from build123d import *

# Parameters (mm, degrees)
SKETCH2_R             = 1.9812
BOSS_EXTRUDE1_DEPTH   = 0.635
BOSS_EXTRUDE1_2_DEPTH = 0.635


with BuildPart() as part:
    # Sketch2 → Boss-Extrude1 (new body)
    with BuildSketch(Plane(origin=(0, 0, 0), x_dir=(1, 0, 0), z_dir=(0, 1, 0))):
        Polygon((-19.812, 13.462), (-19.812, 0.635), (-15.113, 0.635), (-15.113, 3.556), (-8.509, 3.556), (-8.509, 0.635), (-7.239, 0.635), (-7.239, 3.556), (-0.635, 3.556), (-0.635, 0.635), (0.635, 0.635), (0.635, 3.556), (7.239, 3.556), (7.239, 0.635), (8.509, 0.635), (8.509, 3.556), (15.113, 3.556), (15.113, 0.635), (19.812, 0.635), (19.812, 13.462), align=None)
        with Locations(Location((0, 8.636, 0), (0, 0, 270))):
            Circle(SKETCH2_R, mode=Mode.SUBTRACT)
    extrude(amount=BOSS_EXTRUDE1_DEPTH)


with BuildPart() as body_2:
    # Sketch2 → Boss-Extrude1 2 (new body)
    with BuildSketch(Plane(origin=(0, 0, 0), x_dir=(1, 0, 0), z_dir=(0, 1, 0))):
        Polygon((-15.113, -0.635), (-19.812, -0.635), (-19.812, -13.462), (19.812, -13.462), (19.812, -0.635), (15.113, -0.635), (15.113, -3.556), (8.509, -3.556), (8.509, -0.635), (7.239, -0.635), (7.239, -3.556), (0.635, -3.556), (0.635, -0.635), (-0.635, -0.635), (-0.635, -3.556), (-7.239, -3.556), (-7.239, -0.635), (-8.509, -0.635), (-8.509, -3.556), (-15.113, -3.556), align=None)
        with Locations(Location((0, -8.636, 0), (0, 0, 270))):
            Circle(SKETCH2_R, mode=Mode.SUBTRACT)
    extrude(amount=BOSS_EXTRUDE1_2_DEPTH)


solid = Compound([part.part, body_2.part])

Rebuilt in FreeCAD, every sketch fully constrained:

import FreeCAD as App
import Part
import Sketcher
from FreeCAD import Vector
Q = App.Units.Quantity

doc = App.newDocument("Part")
params = doc.addObject("Spreadsheet::Sheet", "Params")
for row, (alias, value) in enumerate([
    ("sketch1_diameter", "0.156 in"),
    ("sketch1_width", "0.26 in"),
    ("sketch1_width2", "0.05 in"),
    ("sketch1_width3", "1.56 in"),
    ("sketch1_height", "0.505 in"),
    ("pad1_length", "0.025 in"),
    ("sketch2_diameter", "0.156 in"),
    ("sketch2_width", "1.56 in"),
    ("sketch2_width2", "0.26 in"),
    ("sketch2_width3", "0.05 in"),
    ("sketch2_height", "0.505 in"),
    ("pad2_length", "0.025 in"),
], start=1):
    params.set(f"A{row}", alias)
    params.set(f"B{row}", "=" + value)
    params.setAlias(f"B{row}", alias)

body = doc.addObject("PartDesign::Body", "Body")

# Sketch on XZ plane
sketch1 = body.newObject("Sketcher::SketchObject", "Sketch")
sketch1.AttachmentSupport = (doc.getObject("XZ_Plane"), [""])
sketch1.MapMode = "FlatFace"
sketch1.addGeometry(Part.LineSegment(Vector(-19.812, -13.462, 0), Vector(-19.812, -0.635, 0)), False)
sketch1.addGeometry(Part.LineSegment(Vector(-19.812, -0.635, 0), Vector(-15.113, -0.635, 0)), False)
sketch1.addGeometry(Part.LineSegment(Vector(-15.113, -0.635, 0), Vector(-15.113, -3.556, 0)), False)
sketch1.addGeometry(Part.LineSegment(Vector(-15.113, -3.556, 0), Vector(-8.509, -3.556, 0)), False)
sketch1.addGeometry(Part.LineSegment(Vector(-8.509, -3.556, 0), Vector(-8.509, -0.635, 0)), False)
sketch1.addGeometry(Part.LineSegment(Vector(-8.509, -0.635, 0), Vector(-7.239, -0.635, 0)), False)
sketch1.addGeometry(Part.LineSegment(Vector(-7.239, -0.635, 0), Vector(-7.239, -3.556, 0)), False)
sketch1.addGeometry(Part.LineSegment(Vector(-7.239, -3.556, 0), Vector(-0.635, -3.556, 0)), False)
sketch1.addGeometry(Part.LineSegment(Vector(-0.635, -3.556, 0), Vector(-0.635, -0.635, 0)), False)
sketch1.addGeometry(Part.LineSegment(Vector(-0.635, -0.635, 0), Vector(0.635, -0.635, 0)), False)
sketch1.addGeometry(Part.LineSegment(Vector(0.635, -0.635, 0), Vector(0.635, -3.556, 0)), False)
sketch1.addGeometry(Part.LineSegment(Vector(0.635, -3.556, 0), Vector(7.239, -3.556, 0)), False)
sketch1.addGeometry(Part.LineSegment(Vector(7.239, -3.556, 0), Vector(7.239, -0.635, 0)), False)
sketch1.addGeometry(Part.LineSegment(Vector(7.239, -0.635, 0), Vector(8.509, -0.635, 0)), False)
sketch1.addGeometry(Part.LineSegment(Vector(8.509, -0.635, 0), Vector(8.509, -3.556, 0)), False)
sketch1.addGeometry(Part.LineSegment(Vector(8.509, -3.556, 0), Vector(15.113, -3.556, 0)), False)
sketch1.addGeometry(Part.LineSegment(Vector(15.113, -3.556, 0), Vector(15.113, -0.635, 0)), False)
sketch1.addGeometry(Part.LineSegment(Vector(15.113, -0.635, 0), Vector(19.812, -0.635, 0)), False)
sketch1.addGeometry(Part.LineSegment(Vector(19.812, -0.635, 0), Vector(19.812, -13.462, 0)), False)
sketch1.addGeometry(Part.LineSegment(Vector(19.812, -13.462, 0), Vector(-19.812, -13.462, 0)), False)
sketch1.addGeometry(Part.Circle(Vector(0, -8.636, 0), Vector(0, 0, 1), 1.9812), False)
sketch1.addConstraint(Sketcher.Constraint("Coincident", 0, 2, 1, 1))
sketch1.addConstraint(Sketcher.Constraint("Coincident", 1, 2, 2, 1))
sketch1.addConstraint(Sketcher.Constraint("Coincident", 2, 2, 3, 1))
sketch1.addConstraint(Sketcher.Constraint("Coincident", 3, 2, 4, 1))
sketch1.addConstraint(Sketcher.Constraint("Coincident", 4, 2, 5, 1))
sketch1.addConstraint(Sketcher.Constraint("Coincident", 5, 2, 6, 1))
sketch1.addConstraint(Sketcher.Constraint("Coincident", 6, 2, 7, 1))
sketch1.addConstraint(Sketcher.Constraint("Coincident", 7, 2, 8, 1))
sketch1.addConstraint(Sketcher.Constraint("Coincident", 8, 2, 9, 1))
sketch1.addConstraint(Sketcher.Constraint("Coincident", 9, 2, 10, 1))
sketch1.addConstraint(Sketcher.Constraint("Coincident", 10, 2, 11, 1))
sketch1.addConstraint(Sketcher.Constraint("Coincident", 11, 2, 12, 1))
sketch1.addConstraint(Sketcher.Constraint("Coincident", 12, 2, 13, 1))
sketch1.addConstraint(Sketcher.Constraint("Coincident", 13, 2, 14, 1))
sketch1.addConstraint(Sketcher.Constraint("Coincident", 14, 2, 15, 1))
sketch1.addConstraint(Sketcher.Constraint("Coincident", 15, 2, 16, 1))
sketch1.addConstraint(Sketcher.Constraint("Coincident", 16, 2, 17, 1))
sketch1.addConstraint(Sketcher.Constraint("Coincident", 17, 2, 18, 1))
sketch1.addConstraint(Sketcher.Constraint("Coincident", 18, 2, 19, 1))
sketch1.addConstraint(Sketcher.Constraint("Coincident", 19, 2, 0, 1))
sketch1.addConstraint(Sketcher.Constraint("Vertical", 0))
sketch1.addConstraint(Sketcher.Constraint("Horizontal", 1))
sketch1.addConstraint(Sketcher.Constraint("Vertical", 2))
sketch1.addConstraint(Sketcher.Constraint("Horizontal", 3))
sketch1.addConstraint(Sketcher.Constraint("Vertical", 4))
sketch1.addConstraint(Sketcher.Constraint("Horizontal", 5))
sketch1.addConstraint(Sketcher.Constraint("Vertical", 6))
sketch1.addConstraint(Sketcher.Constraint("Horizontal", 7))
sketch1.addConstraint(Sketcher.Constraint("Vertical", 8))
sketch1.addConstraint(Sketcher.Constraint("Horizontal", 9))
sketch1.addConstraint(Sketcher.Constraint("Vertical", 10))
sketch1.addConstraint(Sketcher.Constraint("Horizontal", 11))
sketch1.addConstraint(Sketcher.Constraint("Vertical", 12))
sketch1.addConstraint(Sketcher.Constraint("Horizontal", 13))
sketch1.addConstraint(Sketcher.Constraint("Vertical", 14))
sketch1.addConstraint(Sketcher.Constraint("Horizontal", 15))
sketch1.addConstraint(Sketcher.Constraint("Vertical", 16))
sketch1.addConstraint(Sketcher.Constraint("Horizontal", 17))
sketch1.addConstraint(Sketcher.Constraint("Vertical", 18))
sketch1.addConstraint(Sketcher.Constraint("Horizontal", 19))
sketch1.addConstraint(Sketcher.Constraint("Symmetric", 7, 2, 10, 2, -2))
sketch1.addConstraint(Sketcher.Constraint("Symmetric", 5, 2, 12, 2, -2))
sketch1.addConstraint(Sketcher.Constraint("Symmetric", 3, 2, 14, 2, -2))
sketch1.addConstraint(Sketcher.Constraint("Symmetric", 1, 2, 16, 2, -2))
sketch1.addConstraint(Sketcher.Constraint("PointOnObject", 20, 3, -2))
sketch1.addConstraint(Sketcher.Constraint("Horizontal", 1, 2, 4, 2))
sketch1.addConstraint(Sketcher.Constraint("Horizontal", 3, 2, 6, 2))
sketch1.addConstraint(Sketcher.Constraint("Horizontal", 5, 2, 8, 2))
sketch1.addConstraint(Sketcher.Constraint("Equal", 3, 7))
sketch1.addConstraint(Sketcher.Constraint("Equal", 5, 9))
sketch1.addConstraint(Sketcher.Constraint("Equal", 1, 17))
sketch1.addConstraint(Sketcher.Constraint("Diameter", 20, Q("0.156 in")))
sketch1.addConstraint(Sketcher.Constraint("DistanceX", 3, 1, 3, 2, Q("0.26 in")))
sketch1.addConstraint(Sketcher.Constraint("DistanceX", 5, 1, 5, 2, Q("0.05 in")))
sketch1.addConstraint(Sketcher.Constraint("DistanceX", 19, 2, 19, 1, Q("1.56 in")))
sketch1.addConstraint(Sketcher.Constraint("DistanceY", 20, 3, 2, 2, Q("0.2 in")))
sketch1.addConstraint(Sketcher.Constraint("DistanceY", 0, 1, 0, 2, Q("0.505 in")))
sketch1.addConstraint(Sketcher.Constraint("DistanceY", 2, 2, 2, 1, Q("0.115 in")))
sketch1.addConstraint(Sketcher.Constraint("DistanceY", 20, 3, -1, 1, Q("0.34 in")))
sketch1.setExpression("Constraints[51]", "Params.sketch1_diameter")
sketch1.setExpression("Constraints[52]", "Params.sketch1_width")
sketch1.setExpression("Constraints[53]", "Params.sketch1_width2")
sketch1.setExpression("Constraints[54]", "Params.sketch1_width3")
sketch1.setExpression("Constraints[56]", "Params.sketch1_height")
pad1 = body.newObject("PartDesign::Pad", "Pad")
pad1.Profile = sketch1
pad1.setExpression("Length", "Params.pad1_length")
pad1.Reversed = True
body2 = doc.addObject("PartDesign::Body", "Body001")

# Sketch on XZ plane
sketch2 = body2.newObject("Sketcher::SketchObject", "Sketch001")
sketch2.AttachmentSupport = (doc.getObject("XZ_Plane001"), [""])
sketch2.MapMode = "FlatFace"
sketch2.addGeometry(Part.LineSegment(Vector(-15.113, 0.635, 0), Vector(-19.812, 0.635, 0)), False)
sketch2.addGeometry(Part.LineSegment(Vector(-19.812, 0.635, 0), Vector(-19.812, 13.462, 0)), False)
sketch2.addGeometry(Part.LineSegment(Vector(-19.812, 13.462, 0), Vector(19.812, 13.462, 0)), False)
sketch2.addGeometry(Part.LineSegment(Vector(19.812, 13.462, 0), Vector(19.812, 0.635, 0)), False)
sketch2.addGeometry(Part.LineSegment(Vector(19.812, 0.635, 0), Vector(15.113, 0.635, 0)), False)
sketch2.addGeometry(Part.LineSegment(Vector(15.113, 0.635, 0), Vector(15.113, 3.556, 0)), False)
sketch2.addGeometry(Part.LineSegment(Vector(15.113, 3.556, 0), Vector(8.509, 3.556, 0)), False)
sketch2.addGeometry(Part.LineSegment(Vector(8.509, 3.556, 0), Vector(8.509, 0.635, 0)), False)
sketch2.addGeometry(Part.LineSegment(Vector(8.509, 0.635, 0), Vector(7.239, 0.635, 0)), False)
sketch2.addGeometry(Part.LineSegment(Vector(7.239, 0.635, 0), Vector(7.239, 3.556, 0)), False)
sketch2.addGeometry(Part.LineSegment(Vector(7.239, 3.556, 0), Vector(0.635, 3.556, 0)), False)
sketch2.addGeometry(Part.LineSegment(Vector(0.635, 3.556, 0), Vector(0.635, 0.635, 0)), False)
sketch2.addGeometry(Part.LineSegment(Vector(0.635, 0.635, 0), Vector(-0.635, 0.635, 0)), False)
sketch2.addGeometry(Part.LineSegment(Vector(-0.635, 0.635, 0), Vector(-0.635, 3.556, 0)), False)
sketch2.addGeometry(Part.LineSegment(Vector(-0.635, 3.556, 0), Vector(-7.239, 3.556, 0)), False)
sketch2.addGeometry(Part.LineSegment(Vector(-7.239, 3.556, 0), Vector(-7.239, 0.635, 0)), False)
sketch2.addGeometry(Part.LineSegment(Vector(-7.239, 0.635, 0), Vector(-8.509, 0.635, 0)), False)
sketch2.addGeometry(Part.LineSegment(Vector(-8.509, 0.635, 0), Vector(-8.509, 3.556, 0)), False)
sketch2.addGeometry(Part.LineSegment(Vector(-8.509, 3.556, 0), Vector(-15.113, 3.556, 0)), False)
sketch2.addGeometry(Part.LineSegment(Vector(-15.113, 3.556, 0), Vector(-15.113, 0.635, 0)), False)
sketch2.addGeometry(Part.Circle(Vector(0, 8.636, 0), Vector(0, 0, 1), 1.9812), False)
sketch2.addConstraint(Sketcher.Constraint("Coincident", 0, 2, 1, 1))
sketch2.addConstraint(Sketcher.Constraint("Coincident", 1, 2, 2, 1))
sketch2.addConstraint(Sketcher.Constraint("Coincident", 2, 2, 3, 1))
sketch2.addConstraint(Sketcher.Constraint("Coincident", 3, 2, 4, 1))
sketch2.addConstraint(Sketcher.Constraint("Coincident", 4, 2, 5, 1))
sketch2.addConstraint(Sketcher.Constraint("Coincident", 5, 2, 6, 1))
sketch2.addConstraint(Sketcher.Constraint("Coincident", 6, 2, 7, 1))
sketch2.addConstraint(Sketcher.Constraint("Coincident", 7, 2, 8, 1))
sketch2.addConstraint(Sketcher.Constraint("Coincident", 8, 2, 9, 1))
sketch2.addConstraint(Sketcher.Constraint("Coincident", 9, 2, 10, 1))
sketch2.addConstraint(Sketcher.Constraint("Coincident", 10, 2, 11, 1))
sketch2.addConstraint(Sketcher.Constraint("Coincident", 11, 2, 12, 1))
sketch2.addConstraint(Sketcher.Constraint("Coincident", 12, 2, 13, 1))
sketch2.addConstraint(Sketcher.Constraint("Coincident", 13, 2, 14, 1))
sketch2.addConstraint(Sketcher.Constraint("Coincident", 14, 2, 15, 1))
sketch2.addConstraint(Sketcher.Constraint("Coincident", 15, 2, 16, 1))
sketch2.addConstraint(Sketcher.Constraint("Coincident", 16, 2, 17, 1))
sketch2.addConstraint(Sketcher.Constraint("Coincident", 17, 2, 18, 1))
sketch2.addConstraint(Sketcher.Constraint("Coincident", 18, 2, 19, 1))
sketch2.addConstraint(Sketcher.Constraint("Coincident", 19, 2, 0, 1))
sketch2.addConstraint(Sketcher.Constraint("Horizontal", 0))
sketch2.addConstraint(Sketcher.Constraint("Vertical", 1))
sketch2.addConstraint(Sketcher.Constraint("Horizontal", 2))
sketch2.addConstraint(Sketcher.Constraint("Vertical", 3))
sketch2.addConstraint(Sketcher.Constraint("Horizontal", 4))
sketch2.addConstraint(Sketcher.Constraint("Vertical", 5))
sketch2.addConstraint(Sketcher.Constraint("Horizontal", 6))
sketch2.addConstraint(Sketcher.Constraint("Vertical", 7))
sketch2.addConstraint(Sketcher.Constraint("Horizontal", 8))
sketch2.addConstraint(Sketcher.Constraint("Vertical", 9))
sketch2.addConstraint(Sketcher.Constraint("Horizontal", 10))
sketch2.addConstraint(Sketcher.Constraint("Vertical", 11))
sketch2.addConstraint(Sketcher.Constraint("Horizontal", 12))
sketch2.addConstraint(Sketcher.Constraint("Vertical", 13))
sketch2.addConstraint(Sketcher.Constraint("Horizontal", 14))
sketch2.addConstraint(Sketcher.Constraint("Vertical", 15))
sketch2.addConstraint(Sketcher.Constraint("Horizontal", 16))
sketch2.addConstraint(Sketcher.Constraint("Vertical", 17))
sketch2.addConstraint(Sketcher.Constraint("Horizontal", 18))
sketch2.addConstraint(Sketcher.Constraint("Vertical", 19))
sketch2.addConstraint(Sketcher.Constraint("Symmetric", 0, 2, 3, 2, -2))
sketch2.addConstraint(Sketcher.Constraint("Symmetric", 10, 2, 13, 2, -2))
sketch2.addConstraint(Sketcher.Constraint("Symmetric", 8, 2, 15, 2, -2))
sketch2.addConstraint(Sketcher.Constraint("Symmetric", 6, 2, 17, 2, -2))
sketch2.addConstraint(Sketcher.Constraint("PointOnObject", 20, 3, -2))
sketch2.addConstraint(Sketcher.Constraint("Horizontal", 4, 2, 7, 2))
sketch2.addConstraint(Sketcher.Constraint("Horizontal", 6, 2, 9, 2))
sketch2.addConstraint(Sketcher.Constraint("Horizontal", 8, 2, 11, 2))
sketch2.addConstraint(Sketcher.Constraint("Equal", 0, 4))
sketch2.addConstraint(Sketcher.Constraint("Equal", 6, 10))
sketch2.addConstraint(Sketcher.Constraint("Equal", 8, 12))
sketch2.addConstraint(Sketcher.Constraint("Diameter", 20, Q("0.156 in")))
sketch2.addConstraint(Sketcher.Constraint("DistanceX", 2, 1, 2, 2, Q("1.56 in")))
sketch2.addConstraint(Sketcher.Constraint("DistanceX", 6, 2, 6, 1, Q("0.26 in")))
sketch2.addConstraint(Sketcher.Constraint("DistanceX", 8, 2, 8, 1, Q("0.05 in")))
sketch2.addConstraint(Sketcher.Constraint("DistanceY", 5, 2, 20, 3, Q("0.2 in")))
sketch2.addConstraint(Sketcher.Constraint("DistanceY", 1, 1, 1, 2, Q("0.505 in")))
sketch2.addConstraint(Sketcher.Constraint("DistanceY", 5, 1, 5, 2, Q("0.115 in")))
sketch2.addConstraint(Sketcher.Constraint("DistanceY", -1, 1, 20, 3, Q("0.34 in")))
sketch2.setExpression("Constraints[51]", "Params.sketch2_diameter")
sketch2.setExpression("Constraints[52]", "Params.sketch2_width")
sketch2.setExpression("Constraints[53]", "Params.sketch2_width2")
sketch2.setExpression("Constraints[54]", "Params.sketch2_width3")
sketch2.setExpression("Constraints[56]", "Params.sketch2_height")
pad2 = body2.newObject("PartDesign::Pad", "Pad001")
pad2.Profile = sketch2
pad2.setExpression("Length", "Params.pad2_length")
pad2.Reversed = True

doc.recompute()
